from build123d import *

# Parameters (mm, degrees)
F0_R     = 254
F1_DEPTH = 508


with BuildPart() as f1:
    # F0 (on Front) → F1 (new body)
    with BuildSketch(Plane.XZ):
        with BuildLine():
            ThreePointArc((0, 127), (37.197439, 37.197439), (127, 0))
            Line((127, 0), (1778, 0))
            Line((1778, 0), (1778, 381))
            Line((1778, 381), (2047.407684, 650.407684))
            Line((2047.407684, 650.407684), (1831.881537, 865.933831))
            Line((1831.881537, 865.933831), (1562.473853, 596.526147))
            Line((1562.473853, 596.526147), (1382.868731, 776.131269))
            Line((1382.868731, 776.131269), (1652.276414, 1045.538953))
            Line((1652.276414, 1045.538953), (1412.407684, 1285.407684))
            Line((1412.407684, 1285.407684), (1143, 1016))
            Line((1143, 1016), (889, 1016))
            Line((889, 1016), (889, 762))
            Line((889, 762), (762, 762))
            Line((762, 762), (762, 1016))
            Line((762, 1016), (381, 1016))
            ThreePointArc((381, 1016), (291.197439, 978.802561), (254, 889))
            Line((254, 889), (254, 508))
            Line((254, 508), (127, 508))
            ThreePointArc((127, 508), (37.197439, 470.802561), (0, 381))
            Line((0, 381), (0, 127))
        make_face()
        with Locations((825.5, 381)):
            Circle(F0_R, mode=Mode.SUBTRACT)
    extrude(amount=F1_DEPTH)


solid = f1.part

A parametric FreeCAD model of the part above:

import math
import FreeCAD as App
import Part
import Sketcher

V = App.Vector
Q = App.Units.Quantity

doc = App.newDocument("Part")
body = doc.addObject("PartDesign::Body", "Body")

sketch1 = body.newObject("Sketcher::SketchObject", "Sketch")
sketch1.AttachmentSupport = (doc.getObject("XZ_Plane"), [""])
sketch1.MapMode = "FlatFace"
sketch1.addGeometry(Part.ArcOfCircle(Part.Circle(V(127, 127, 0), V(0, 0, 1), 127), math.radians(-180), math.radians(-90)), False)
sketch1.addGeometry(Part.LineSegment(V(127, 0, 0), V(1778, 0, 0)), False)
sketch1.addGeometry(Part.LineSegment(V(1778, 0, 0), V(1778, 381, 0)), False)
sketch1.addGeometry(Part.LineSegment(V(1778, 381, 0), V(2047, 650, 0)), False)
sketch1.addGeometry(Part.LineSegment(V(2047, 650, 0), V(1832, 866, 0)), False)
sketch1.addGeometry(Part.LineSegment(V(1832, 866, 0), V(1562, 597, 0)), False)
sketch1.addGeometry(Part.LineSegment(V(1562, 597, 0), V(1383, 776, 0)), False)
sketch1.addGeometry(Part.LineSegment(V(1383, 776, 0), V(1652, 1046, 0)), False)
sketch1.addGeometry(Part.LineSegment(V(1652, 1046, 0), V(1412, 1285, 0)), False)
sketch1.addGeometry(Part.LineSegment(V(1412, 1285, 0), V(1143, 1016, 0)), False)
sketch1.addGeometry(Part.LineSegment(V(1143, 1016, 0), V(889, 1016, 0)), False)
sketch1.addGeometry(Part.LineSegment(V(889, 1016, 0), V(889, 762, 0)), False)
sketch1.addGeometry(Part.LineSegment(V(889, 762, 0), V(762, 762, 0)), False)
sketch1.addGeometry(Part.LineSegment(V(762, 762, 0), V(762, 1016, 0)), False)
sketch1.addGeometry(Part.LineSegment(V(762, 1016, 0), V(381, 1016, 0)), False)
sketch1.addGeometry(Part.ArcOfCircle(Part.Circle(V(381, 889, 0), V(0, 0, 1), 127), math.radians(90), math.radians(180)), False)
sketch1.addGeometry(Part.LineSegment(V(254, 889, 0), V(254, 508, 0)), False)
sketch1.addGeometry(Part.LineSegment(V(254, 508, 0), V(127, 508, 0)), False)
sketch1.addGeometry(Part.ArcOfCircle(Part.Circle(V(127, 381, 0), V(0, 0, 1), 127), math.radians(90), math.radians(180)), False)
sketch1.addGeometry(Part.LineSegment(V(0, 381, 0), V(0, 127, 0)), False)
sketch1.addGeometry(Part.Circle(V(826, 381, 0), V(0, 0, 1), 254), False)
sketch1.addConstraint(Sketcher.Constraint("Tangent", 0, 2, 1, 1))
sketch1.addConstraint(Sketcher.Constraint("Coincident", 1, 2, 2, 1))
sketch1.addConstraint(Sketcher.Constraint("Coincident", 2, 2, 3, 1))
sketch1.addConstraint(Sketcher.Constraint("Coincident", 3, 2, 4, 1))
sketch1.addConstraint(Sketcher.Constraint("Coincident", 4, 2, 5, 1))
sketch1.addConstraint(Sketcher.Constraint("Coincident", 5, 2, 6, 1))
sketch1.addConstraint(Sketcher.Constraint("Coincident", 6, 2, 7, 1))
sketch1.addConstraint(Sketcher.Constraint("Coincident", 7, 2, 8, 1))
sketch1.addConstraint(Sketcher.Constraint("Coincident", 8, 2, 9, 1))
sketch1.addConstraint(Sketcher.Constraint("Coincident", 9, 2, 10, 1))
sketch1.addConstraint(Sketcher.Constraint("Coincident", 10, 2, 11, 1))
sketch1.addConstraint(Sketcher.Constraint("Coincident", 11, 2, 12, 1))
sketch1.addConstraint(Sketcher.Constraint("Coincident", 12, 2, 13, 1))
sketch1.addConstraint(Sketcher.Constraint("Coincident", 13, 2, 14, 1))
sketch1.addConstraint(Sketcher.Constraint("Tangent", 14, 2, 15, 1))
sketch1.addConstraint(Sketcher.Constraint("Tangent", 15, 2, 16, 1))
sketch1.addConstraint(Sketcher.Constraint("Coincident", 16, 2, 17, 1))
sketch1.addConstraint(Sketcher.Constraint("Tangent", 17, 2, 18, 1))
sketch1.addConstraint(Sketcher.Constraint("Tangent", 18, 2, 19, 1))
sketch1.addConstraint(Sketcher.Constraint("Tangent", 19, 2, 0, 1))
sketch1.addConstraint(Sketcher.Constraint("Horizontal", 1))
sketch1.addConstraint(Sketcher.Constraint("Vertical", 2))
sketch1.addConstraint(Sketcher.Constraint("Horizontal", 10))
sketch1.addConstraint(Sketcher.Constraint("Vertical", 11))
sketch1.addConstraint(Sketcher.Constraint("Horizontal", 12))
sketch1.addConstraint(Sketcher.Constraint("Vertical", 13))
sketch1.addConstraint(Sketcher.Constraint("Horizontal", 14))
sketch1.addConstraint(Sketcher.Constraint("Vertical", 16))
sketch1.addConstraint(Sketcher.Constraint("Horizontal", 17))
sketch1.addConstraint(Sketcher.Constraint("Vertical", 19))
sketch1.addConstraint(Sketcher.Constraint("Equal", 0, 15))
sketch1.addConstraint(Sketcher.Constraint("Equal", 15, 18))
sketch1.addConstraint(Sketcher.Constraint("PointOnObject", 0, 2, -1))
sketch1.addConstraint(Sketcher.Constraint("PointOnObject", 18, 2, -2))
sketch1.addConstraint(Sketcher.Constraint("Perpendicular", 3, 4))
sketch1.addConstraint(Sketcher.Constraint("Perpendicular", 4, 5))
sketch1.addConstraint(Sketcher.Constraint("Perpendicular", 5, 6))
sketch1.addConstraint(Sketcher.Constraint("Perpendicular", 6, 7))
sketch1.addConstraint(Sketcher.Constraint("Perpendicular", 7, 8))
sketch1.addConstraint(Sketcher.Constraint("Perpendicular", 8, 9))
sketch1.addConstraint(Sketcher.Constraint("Horizontal", 18, 3, 20, 3))
sketch1.addConstraint(Sketcher.Constraint("Horizontal", 20, 3, 2, 2))
sketch1.addConstraint(Sketcher.Constraint("Horizontal", 10, 2, 13, 2))
sketch1.addConstraint(Sketcher.Constraint("Equal", 12, 17))
sketch1.addConstraint(Sketcher.Constraint("Equal", 14, 2))
sketch1.addConstraint(Sketcher.Constraint("Equal", 10, 11))
sketch1.addConstraint(Sketcher.Constraint("Equal", 2, 16))
sketch1.addConstraint(Sketcher.Constraint("Equal", 13, 19))
sketch1.addConstraint(Sketcher.Constraint("Equal", 3, 5))
sketch1.addConstraint(Sketcher.Constraint("Equal", 5, 7))
sketch1.addConstraint(Sketcher.Constraint("Equal", 7, 9))
sketch1.addConstraint(Sketcher.Constraint("Diameter", 20, Q("20 in")))
sketch1.addConstraint(Sketcher.Constraint("Radius", 0, Q("5 in")))
sketch1.addConstraint(Sketcher.Constraint("DistanceX", 1, 1, 1, 2, Q("65 in")))
sketch1.addConstraint(Sketcher.Constraint("DistanceX", 10, 2, 10, 1, Q("10 in")))
sketch1.addConstraint(Sketcher.Constraint("DistanceX", 12, 2, 12, 1, Q("5 in")))
sketch1.addConstraint(Sketcher.Constraint("Distance", 3, Q("15 in")))
sketch1.addConstraint(Sketcher.Constraint("Distance", 4, Q("12 in")))
sketch1.addConstraint(Sketcher.Constraint("Distance", 6, Q("10 in")))
sketch1.addConstraint(Sketcher.Constraint("DistanceX", -1, 1, 20, 3, Q("32.5 in")))
pad1 = body.newObject("PartDesign::Pad", "Pad")
pad1.Profile = sketch1
pad1.Length = Q("20 in")

doc.recompute()
